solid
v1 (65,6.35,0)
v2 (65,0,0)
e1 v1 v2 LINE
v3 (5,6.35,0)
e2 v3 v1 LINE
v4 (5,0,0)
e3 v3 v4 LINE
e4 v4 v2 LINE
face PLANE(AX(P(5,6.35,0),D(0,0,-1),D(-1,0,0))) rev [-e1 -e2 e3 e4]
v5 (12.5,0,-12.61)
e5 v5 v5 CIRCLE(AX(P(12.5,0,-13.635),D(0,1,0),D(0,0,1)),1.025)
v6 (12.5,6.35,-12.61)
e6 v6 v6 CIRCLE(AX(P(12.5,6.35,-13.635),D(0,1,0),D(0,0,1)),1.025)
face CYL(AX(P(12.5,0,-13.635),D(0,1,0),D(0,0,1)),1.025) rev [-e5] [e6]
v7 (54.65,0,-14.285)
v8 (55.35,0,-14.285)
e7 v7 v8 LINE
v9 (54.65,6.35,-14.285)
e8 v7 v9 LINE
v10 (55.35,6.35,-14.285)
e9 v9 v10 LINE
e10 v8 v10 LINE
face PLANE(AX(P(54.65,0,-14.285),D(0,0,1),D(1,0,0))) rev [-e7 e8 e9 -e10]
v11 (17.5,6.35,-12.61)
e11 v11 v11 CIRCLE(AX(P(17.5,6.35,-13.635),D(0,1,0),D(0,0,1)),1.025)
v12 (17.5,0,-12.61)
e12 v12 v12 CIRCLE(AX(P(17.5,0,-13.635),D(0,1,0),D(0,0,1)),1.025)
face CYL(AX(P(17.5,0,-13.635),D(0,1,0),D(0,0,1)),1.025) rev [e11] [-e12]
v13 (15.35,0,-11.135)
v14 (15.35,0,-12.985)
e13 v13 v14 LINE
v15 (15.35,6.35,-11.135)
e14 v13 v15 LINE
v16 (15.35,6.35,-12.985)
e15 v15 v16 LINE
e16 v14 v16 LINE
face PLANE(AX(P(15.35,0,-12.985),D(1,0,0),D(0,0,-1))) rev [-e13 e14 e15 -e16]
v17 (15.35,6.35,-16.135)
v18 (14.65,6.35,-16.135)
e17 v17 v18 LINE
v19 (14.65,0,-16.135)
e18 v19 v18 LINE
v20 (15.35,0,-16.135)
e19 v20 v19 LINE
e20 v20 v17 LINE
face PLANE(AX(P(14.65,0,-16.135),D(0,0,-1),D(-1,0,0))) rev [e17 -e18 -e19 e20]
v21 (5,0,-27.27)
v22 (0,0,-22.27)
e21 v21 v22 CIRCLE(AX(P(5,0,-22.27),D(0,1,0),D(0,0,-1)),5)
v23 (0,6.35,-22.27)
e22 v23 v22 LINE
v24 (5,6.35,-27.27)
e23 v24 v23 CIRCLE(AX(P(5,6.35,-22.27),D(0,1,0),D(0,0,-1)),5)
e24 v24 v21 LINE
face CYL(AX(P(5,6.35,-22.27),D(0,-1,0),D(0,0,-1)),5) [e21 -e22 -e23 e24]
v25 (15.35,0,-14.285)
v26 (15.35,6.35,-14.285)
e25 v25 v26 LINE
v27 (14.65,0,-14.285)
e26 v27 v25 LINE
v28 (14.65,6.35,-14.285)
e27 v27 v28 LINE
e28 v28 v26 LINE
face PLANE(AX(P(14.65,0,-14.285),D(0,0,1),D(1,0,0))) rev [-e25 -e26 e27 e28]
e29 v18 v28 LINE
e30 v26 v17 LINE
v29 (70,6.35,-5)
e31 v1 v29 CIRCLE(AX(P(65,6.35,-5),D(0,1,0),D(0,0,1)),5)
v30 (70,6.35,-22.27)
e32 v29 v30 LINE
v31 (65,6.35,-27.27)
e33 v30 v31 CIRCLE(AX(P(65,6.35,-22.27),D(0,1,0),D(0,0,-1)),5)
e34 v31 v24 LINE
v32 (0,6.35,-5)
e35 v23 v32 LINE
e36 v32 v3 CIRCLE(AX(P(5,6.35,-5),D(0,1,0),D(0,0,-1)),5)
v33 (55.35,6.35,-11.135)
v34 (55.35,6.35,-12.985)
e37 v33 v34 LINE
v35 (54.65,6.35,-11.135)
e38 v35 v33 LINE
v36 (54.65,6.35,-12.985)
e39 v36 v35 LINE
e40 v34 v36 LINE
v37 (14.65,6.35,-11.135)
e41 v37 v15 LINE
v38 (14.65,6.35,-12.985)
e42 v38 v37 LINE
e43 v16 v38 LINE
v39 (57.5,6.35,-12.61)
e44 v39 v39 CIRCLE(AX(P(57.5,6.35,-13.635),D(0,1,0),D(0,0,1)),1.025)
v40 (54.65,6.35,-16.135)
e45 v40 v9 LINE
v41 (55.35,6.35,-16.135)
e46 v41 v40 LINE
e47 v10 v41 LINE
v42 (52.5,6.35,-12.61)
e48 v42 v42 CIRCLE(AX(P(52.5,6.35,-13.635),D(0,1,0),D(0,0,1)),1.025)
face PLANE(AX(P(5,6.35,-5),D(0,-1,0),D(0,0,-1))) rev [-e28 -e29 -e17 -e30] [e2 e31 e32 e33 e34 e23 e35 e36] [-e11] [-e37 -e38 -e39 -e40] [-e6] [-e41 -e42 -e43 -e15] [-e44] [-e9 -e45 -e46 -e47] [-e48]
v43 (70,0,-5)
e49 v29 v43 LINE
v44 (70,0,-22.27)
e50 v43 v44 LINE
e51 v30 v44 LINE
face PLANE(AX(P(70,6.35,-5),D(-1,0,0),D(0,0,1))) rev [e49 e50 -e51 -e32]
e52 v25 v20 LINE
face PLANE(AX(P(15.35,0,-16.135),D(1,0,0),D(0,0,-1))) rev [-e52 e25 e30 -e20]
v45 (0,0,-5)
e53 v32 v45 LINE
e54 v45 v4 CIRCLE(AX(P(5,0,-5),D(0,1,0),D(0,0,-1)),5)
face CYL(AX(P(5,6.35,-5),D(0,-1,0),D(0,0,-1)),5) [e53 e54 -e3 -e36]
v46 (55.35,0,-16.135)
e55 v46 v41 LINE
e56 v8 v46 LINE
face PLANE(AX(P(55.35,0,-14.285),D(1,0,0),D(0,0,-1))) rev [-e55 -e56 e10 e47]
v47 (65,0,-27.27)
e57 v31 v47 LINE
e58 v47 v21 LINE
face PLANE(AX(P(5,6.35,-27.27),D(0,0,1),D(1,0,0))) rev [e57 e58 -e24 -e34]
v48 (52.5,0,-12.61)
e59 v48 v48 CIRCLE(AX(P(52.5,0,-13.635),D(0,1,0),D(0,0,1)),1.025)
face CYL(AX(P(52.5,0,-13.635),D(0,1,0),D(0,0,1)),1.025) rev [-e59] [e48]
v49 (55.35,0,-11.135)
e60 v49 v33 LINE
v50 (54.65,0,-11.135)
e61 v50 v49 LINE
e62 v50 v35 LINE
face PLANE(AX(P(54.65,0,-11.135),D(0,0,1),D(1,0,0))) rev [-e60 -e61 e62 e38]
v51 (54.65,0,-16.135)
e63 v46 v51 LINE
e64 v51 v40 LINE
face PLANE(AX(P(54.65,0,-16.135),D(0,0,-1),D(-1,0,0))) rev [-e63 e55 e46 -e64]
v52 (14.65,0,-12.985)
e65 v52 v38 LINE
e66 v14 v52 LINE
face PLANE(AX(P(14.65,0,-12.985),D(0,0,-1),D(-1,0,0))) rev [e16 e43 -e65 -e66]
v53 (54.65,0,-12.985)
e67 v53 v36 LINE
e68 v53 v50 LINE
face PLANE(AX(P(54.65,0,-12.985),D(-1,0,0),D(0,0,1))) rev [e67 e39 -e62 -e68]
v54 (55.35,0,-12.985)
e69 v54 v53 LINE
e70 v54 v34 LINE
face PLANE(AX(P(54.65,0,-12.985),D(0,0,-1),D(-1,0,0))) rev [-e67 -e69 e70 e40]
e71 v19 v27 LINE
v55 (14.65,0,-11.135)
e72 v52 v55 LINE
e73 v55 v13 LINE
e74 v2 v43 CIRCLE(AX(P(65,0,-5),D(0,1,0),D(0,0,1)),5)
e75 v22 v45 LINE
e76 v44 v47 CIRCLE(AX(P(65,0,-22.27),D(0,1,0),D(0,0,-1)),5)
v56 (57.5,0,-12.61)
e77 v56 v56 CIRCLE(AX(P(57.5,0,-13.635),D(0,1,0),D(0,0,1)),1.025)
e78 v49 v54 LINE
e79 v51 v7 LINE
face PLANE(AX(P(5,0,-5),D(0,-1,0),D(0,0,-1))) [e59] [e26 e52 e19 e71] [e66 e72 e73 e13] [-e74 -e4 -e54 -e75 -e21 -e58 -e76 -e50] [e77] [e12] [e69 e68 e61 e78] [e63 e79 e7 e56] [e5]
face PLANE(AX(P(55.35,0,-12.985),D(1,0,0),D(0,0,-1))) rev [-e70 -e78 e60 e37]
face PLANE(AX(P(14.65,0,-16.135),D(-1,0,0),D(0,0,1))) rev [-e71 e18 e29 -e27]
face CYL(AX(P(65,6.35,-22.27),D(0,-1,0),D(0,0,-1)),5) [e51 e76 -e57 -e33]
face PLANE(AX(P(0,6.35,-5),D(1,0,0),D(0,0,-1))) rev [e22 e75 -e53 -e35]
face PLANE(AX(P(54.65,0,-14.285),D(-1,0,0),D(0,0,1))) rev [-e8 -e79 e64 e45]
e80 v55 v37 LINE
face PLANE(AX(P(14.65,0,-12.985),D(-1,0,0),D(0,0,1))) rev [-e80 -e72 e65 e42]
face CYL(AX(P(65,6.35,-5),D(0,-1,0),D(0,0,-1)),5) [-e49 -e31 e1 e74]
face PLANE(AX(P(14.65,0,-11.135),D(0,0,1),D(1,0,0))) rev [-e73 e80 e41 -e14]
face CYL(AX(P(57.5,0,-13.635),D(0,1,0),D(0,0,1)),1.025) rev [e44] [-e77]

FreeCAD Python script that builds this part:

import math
import FreeCAD as App
import Part
import Sketcher
from FreeCAD import Vector

doc = App.newDocument("Part")
params = doc.addObject("Spreadsheet::Sheet", "Params")
for row, (alias, value) in enumerate([
    ("sketch1_radius", "5 mm"),
    ("sketch1_width", "60 mm"),
    ("sketch1_height", "17.27 mm"),
    ("pad1_length", "6.35 mm"),
    ("sketch2_diameter", "2.05 mm"),
    ("sketch2_width", "0.7 mm"),
    ("sketch2_height", "1.85 mm"),
    ("pocket1_length", "6.35 mm"),
], start=1):
    params.set(f"A{row}", alias)
    params.set(f"B{row}", "=" + value)
    params.setAlias(f"B{row}", alias)

body = doc.addObject("PartDesign::Body", "Body")

# Sketch on XZ plane
sketch1 = body.newObject("Sketcher::SketchObject", "Sketch")
sketch1.AttachmentSupport = (doc.getObject("XZ_Plane"), [""])
sketch1.MapMode = "FlatFace"
sketch1.addGeometry([
    Part.LineSegment(Vector(5, 0, 0), Vector(65, 0, 0)),  # 0
    Part.ArcOfCircle(Part.Circle(Vector(65, -5, 0), Vector(0, 0, 1), 5), math.radians(0), math.radians(90)),  # 1
    Part.LineSegment(Vector(70, -5, 0), Vector(70, -22, 0)),  # 2
    Part.ArcOfCircle(Part.Circle(Vector(65, -22, 0), Vector(0, 0, 1), 5), math.radians(-90), math.radians(0)),  # 3
    Part.LineSegment(Vector(65, -27, 0), Vector(5, -27, 0)),  # 4
    Part.ArcOfCircle(Part.Circle(Vector(5, -22, 0), Vector(0, 0, 1), 5), math.radians(180), math.radians(270)),  # 5
    Part.LineSegment(Vector(0, -22, 0), Vector(0, -5, 0)),  # 6
    Part.ArcOfCircle(Part.Circle(Vector(5, -5, 0), Vector(0, 0, 1), 5), math.radians(90), math.radians(180)),  # 7
], False)
sketch1.addConstraint([
    Sketcher.Constraint("Tangent", 0, 2, 1, 2),
    Sketcher.Constraint("Tangent", 1, 1, 2, 1),
    Sketcher.Constraint("Tangent", 2, 2, 3, 2),
    Sketcher.Constraint("Tangent", 3, 1, 4, 1),
    Sketcher.Constraint("Tangent", 4, 2, 5, 2),
    Sketcher.Constraint("Tangent", 5, 1, 6, 1),
    Sketcher.Constraint("Tangent", 6, 2, 7, 2),
    Sketcher.Constraint("Tangent", 7, 1, 0, 1),
    Sketcher.Constraint("Horizontal", 0),
    Sketcher.Constraint("Vertical", 2),
    Sketcher.Constraint("Horizontal", 4),
    Sketcher.Constraint("Vertical", 6),
    Sketcher.Constraint("Equal", 1, 3),
    Sketcher.Constraint("Equal", 3, 5),
    Sketcher.Constraint("Equal", 5, 7),
    Sketcher.Constraint("PointOnObject", 0, 2, -1),
    Sketcher.Constraint("PointOnObject", 5, 1, -2),
    Sketcher.Constraint("Radius", 1, 5.0),
    Sketcher.Constraint("DistanceX", 0, 1, 0, 2, 60.0),
    Sketcher.Constraint("DistanceY", 2, 2, 2, 1, 17.27),
])
sketch1.setExpression("Constraints[17]", "Params.sketch1_radius")
sketch1.setExpression("Constraints[18]", "Params.sketch1_width")
sketch1.setExpression("Constraints[19]", "Params.sketch1_height")
pad1 = body.newObject("PartDesign::Pad", "Pad")
pad1.Profile = sketch1
pad1.setExpression("Length", "Params.pad1_length")
pad1.Reversed = True

# Sketch on XZ plane
sketch2 = body.newObject("Sketcher::SketchObject", "Sketch001")
sketch2.AttachmentSupport = (doc.getObject("XZ_Plane"), [""])
sketch2.MapMode = "FlatFace"
sketch2.AttachmentOffset = App.Placement(Vector(0, 0, -6.35), App.Rotation())
sketch2.addGeometry([
    Part.Circle(Vector(12.5, -13.6, 0), Vector(0, 0, 1), 1),  # 0
    Part.Circle(Vector(17.5, -13.6, 0), Vector(0, 0, 1), 1),  # 1
    Part.Circle(Vector(52.5, -13.6, 0), Vector(0, 0, 1), 1),  # 2
    Part.Circle(Vector(57.5, -13.6, 0), Vector(0, 0, 1), 1),  # 3
    Part.LineSegment(Vector(14.7, -16.1, 0), Vector(14.7, -14.3, 0)),  # 4
    Part.LineSegment(Vector(14.7, -14.3, 0), Vector(15.3, -14.3, 0)),  # 5
    Part.LineSegment(Vector(15.3, -14.3, 0), Vector(15.3, -16.1, 0)),  # 6
    Part.LineSegment(Vector(15.3, -16.1, 0), Vector(14.7, -16.1, 0)),  # 7
    Part.LineSegment(Vector(14.7, -13, 0), Vector(14.7, -11.1, 0)),  # 8
    Part.LineSegment(Vector(14.7, -11.1, 0), Vector(15.3, -11.1, 0)),  # 9
    Part.LineSegment(Vector(15.3, -11.1, 0), Vector(15.3, -13, 0)),  # 10
    Part.LineSegment(Vector(15.3, -13, 0), Vector(14.7, -13, 0)),  # 11
    Part.LineSegment(Vector(54.6, -13, 0), Vector(54.6, -11.1, 0)),  # 12
    Part.LineSegment(Vector(54.6, -11.1, 0), Vector(55.4, -11.1, 0)),  # 13
    Part.LineSegment(Vector(55.4, -11.1, 0), Vector(55.4, -13, 0)),  # 14
    Part.LineSegment(Vector(55.4, -13, 0), Vector(54.6, -13, 0)),  # 15
    Part.LineSegment(Vector(54.6, -16.1, 0), Vector(54.6, -14.3, 0)),  # 16
    Part.LineSegment(Vector(54.6, -14.3, 0), Vector(55.4, -14.3, 0)),  # 17
    Part.LineSegment(Vector(55.4, -14.3, 0), Vector(55.4, -16.1, 0)),  # 18
    Part.LineSegment(Vector(55.4, -16.1, 0), Vector(54.6, -16.1, 0)),  # 19
], False)
sketch2.addConstraint([
    Sketcher.Constraint("Coincident", 4, 2, 5, 1),
    Sketcher.Constraint("Coincident", 5, 2, 6, 1),
    Sketcher.Constraint("Coincident", 6, 2, 7, 1),
    Sketcher.Constraint("Coincident", 7, 2, 4, 1),
    Sketcher.Constraint("Coincident", 8, 2, 9, 1),
    Sketcher.Constraint("Coincident", 9, 2, 10, 1),
    Sketcher.Constraint("Coincident", 10, 2, 11, 1),
    Sketcher.Constraint("Coincident", 11, 2, 8, 1),
    Sketcher.Constraint("Coincident", 12, 2, 13, 1),
    Sketcher.Constraint("Coincident", 13, 2, 14, 1),
    Sketcher.Constraint("Coincident", 14, 2, 15, 1),
    Sketcher.Constraint("Coincident", 15, 2, 12, 1),
    Sketcher.Constraint("Coincident", 16, 2, 17, 1),
    Sketcher.Constraint("Coincident", 17, 2, 18, 1),
    Sketcher.Constraint("Coincident", 18, 2, 19, 1),
    Sketcher.Constraint("Coincident", 19, 2, 16, 1),
    Sketcher.Constraint("Vertical", 4),
    Sketcher.Constraint("Horizontal", 5),
    Sketcher.Constraint("Vertical", 6),
    Sketcher.Constraint("Horizontal", 7),
    Sketcher.Constraint("Vertical", 8),
    Sketcher.Constraint("Horizontal", 9),
    Sketcher.Constraint("Vertical", 10),
    Sketcher.Constraint("Horizontal", 11),
    Sketcher.Constraint("Vertical", 12),
    Sketcher.Constraint("Horizontal", 13),
    Sketcher.Constraint("Vertical", 14),
    Sketcher.Constraint("Horizontal", 15),
    Sketcher.Constraint("Vertical", 16),
    Sketcher.Constraint("Horizontal", 17),
    Sketcher.Constraint("Vertical", 18),
    Sketcher.Constraint("Horizontal", 19),
    Sketcher.Constraint("Equal", 0, 1),
    Sketcher.Constraint("Equal", 1, 2),
    Sketcher.Constraint("Equal", 2, 3),
    Sketcher.Constraint("Horizontal", 0, 3, 1, 3),
    Sketcher.Constraint("Horizontal", 1, 3, 2, 3),
    Sketcher.Constraint("Horizontal", 2, 3, 3, 3),
    Sketcher.Constraint("Horizontal", 9, 2, 12, 2),
    Sketcher.Constraint("Horizontal", 11, 2, 14, 2),
    Sketcher.Constraint("Horizontal", 5, 2, 16, 2),
    Sketcher.Constraint("Horizontal", 7, 2, 18, 2),
    Sketcher.Constraint("Vertical", 7, 2, 8, 2),
    Sketcher.Constraint("Vertical", 6, 2, 9, 2),
    Sketcher.Constraint("Vertical", 15, 2, 16, 2),
    Sketcher.Constraint("Vertical", 14, 2, 17, 2),
    Sketcher.Constraint("Equal", 11, 13),
    Sketcher.Constraint("Equal", 6, 8),
    Sketcher.Constraint("Diameter", 0, 2.05),
    Sketcher.Constraint("DistanceX", 5, 1, 5, 2, 0.7),
    Sketcher.Constraint("DistanceX", 0, 3, 1, 3, 5.0),
    Sketcher.Constraint("DistanceX", 1, 3, 2, 3, 35.0),
    Sketcher.Constraint("DistanceX", 2, 3, 3, 3, 5.0),
    Sketcher.Constraint("DistanceY", 7, 2, 8, 2, 5.0),
    Sketcher.Constraint("DistanceX", 9, 2, 13, 2, 40.0),
    Sketcher.Constraint("DistanceY", 4, 1, 4, 2, 1.85),
    Sketcher.Constraint("DistanceX", -1, 1, 0, 3, 12.5),
    Sketcher.Constraint("DistanceY", 6, 2, 1, 3, 2.5),
    Sketcher.Constraint("DistanceX", -1, 1, 4, 2, 14.65),
    Sketcher.Constraint("DistanceY", 0, 3, -1, 1, 13.635),
])
sketch2.setExpression("Constraints[48]", "Params.sketch2_diameter")
sketch2.setExpression("Constraints[49]", "Params.sketch2_width")
sketch2.setExpression("Constraints[55]", "Params.sketch2_height")
pocket1 = body.newObject("PartDesign::Pocket", "Pocket")
pocket1.Profile = sketch2
pocket1.setExpression("Length", "Params.pocket1_length")
pocket1.Reversed = True

doc.recompute()
